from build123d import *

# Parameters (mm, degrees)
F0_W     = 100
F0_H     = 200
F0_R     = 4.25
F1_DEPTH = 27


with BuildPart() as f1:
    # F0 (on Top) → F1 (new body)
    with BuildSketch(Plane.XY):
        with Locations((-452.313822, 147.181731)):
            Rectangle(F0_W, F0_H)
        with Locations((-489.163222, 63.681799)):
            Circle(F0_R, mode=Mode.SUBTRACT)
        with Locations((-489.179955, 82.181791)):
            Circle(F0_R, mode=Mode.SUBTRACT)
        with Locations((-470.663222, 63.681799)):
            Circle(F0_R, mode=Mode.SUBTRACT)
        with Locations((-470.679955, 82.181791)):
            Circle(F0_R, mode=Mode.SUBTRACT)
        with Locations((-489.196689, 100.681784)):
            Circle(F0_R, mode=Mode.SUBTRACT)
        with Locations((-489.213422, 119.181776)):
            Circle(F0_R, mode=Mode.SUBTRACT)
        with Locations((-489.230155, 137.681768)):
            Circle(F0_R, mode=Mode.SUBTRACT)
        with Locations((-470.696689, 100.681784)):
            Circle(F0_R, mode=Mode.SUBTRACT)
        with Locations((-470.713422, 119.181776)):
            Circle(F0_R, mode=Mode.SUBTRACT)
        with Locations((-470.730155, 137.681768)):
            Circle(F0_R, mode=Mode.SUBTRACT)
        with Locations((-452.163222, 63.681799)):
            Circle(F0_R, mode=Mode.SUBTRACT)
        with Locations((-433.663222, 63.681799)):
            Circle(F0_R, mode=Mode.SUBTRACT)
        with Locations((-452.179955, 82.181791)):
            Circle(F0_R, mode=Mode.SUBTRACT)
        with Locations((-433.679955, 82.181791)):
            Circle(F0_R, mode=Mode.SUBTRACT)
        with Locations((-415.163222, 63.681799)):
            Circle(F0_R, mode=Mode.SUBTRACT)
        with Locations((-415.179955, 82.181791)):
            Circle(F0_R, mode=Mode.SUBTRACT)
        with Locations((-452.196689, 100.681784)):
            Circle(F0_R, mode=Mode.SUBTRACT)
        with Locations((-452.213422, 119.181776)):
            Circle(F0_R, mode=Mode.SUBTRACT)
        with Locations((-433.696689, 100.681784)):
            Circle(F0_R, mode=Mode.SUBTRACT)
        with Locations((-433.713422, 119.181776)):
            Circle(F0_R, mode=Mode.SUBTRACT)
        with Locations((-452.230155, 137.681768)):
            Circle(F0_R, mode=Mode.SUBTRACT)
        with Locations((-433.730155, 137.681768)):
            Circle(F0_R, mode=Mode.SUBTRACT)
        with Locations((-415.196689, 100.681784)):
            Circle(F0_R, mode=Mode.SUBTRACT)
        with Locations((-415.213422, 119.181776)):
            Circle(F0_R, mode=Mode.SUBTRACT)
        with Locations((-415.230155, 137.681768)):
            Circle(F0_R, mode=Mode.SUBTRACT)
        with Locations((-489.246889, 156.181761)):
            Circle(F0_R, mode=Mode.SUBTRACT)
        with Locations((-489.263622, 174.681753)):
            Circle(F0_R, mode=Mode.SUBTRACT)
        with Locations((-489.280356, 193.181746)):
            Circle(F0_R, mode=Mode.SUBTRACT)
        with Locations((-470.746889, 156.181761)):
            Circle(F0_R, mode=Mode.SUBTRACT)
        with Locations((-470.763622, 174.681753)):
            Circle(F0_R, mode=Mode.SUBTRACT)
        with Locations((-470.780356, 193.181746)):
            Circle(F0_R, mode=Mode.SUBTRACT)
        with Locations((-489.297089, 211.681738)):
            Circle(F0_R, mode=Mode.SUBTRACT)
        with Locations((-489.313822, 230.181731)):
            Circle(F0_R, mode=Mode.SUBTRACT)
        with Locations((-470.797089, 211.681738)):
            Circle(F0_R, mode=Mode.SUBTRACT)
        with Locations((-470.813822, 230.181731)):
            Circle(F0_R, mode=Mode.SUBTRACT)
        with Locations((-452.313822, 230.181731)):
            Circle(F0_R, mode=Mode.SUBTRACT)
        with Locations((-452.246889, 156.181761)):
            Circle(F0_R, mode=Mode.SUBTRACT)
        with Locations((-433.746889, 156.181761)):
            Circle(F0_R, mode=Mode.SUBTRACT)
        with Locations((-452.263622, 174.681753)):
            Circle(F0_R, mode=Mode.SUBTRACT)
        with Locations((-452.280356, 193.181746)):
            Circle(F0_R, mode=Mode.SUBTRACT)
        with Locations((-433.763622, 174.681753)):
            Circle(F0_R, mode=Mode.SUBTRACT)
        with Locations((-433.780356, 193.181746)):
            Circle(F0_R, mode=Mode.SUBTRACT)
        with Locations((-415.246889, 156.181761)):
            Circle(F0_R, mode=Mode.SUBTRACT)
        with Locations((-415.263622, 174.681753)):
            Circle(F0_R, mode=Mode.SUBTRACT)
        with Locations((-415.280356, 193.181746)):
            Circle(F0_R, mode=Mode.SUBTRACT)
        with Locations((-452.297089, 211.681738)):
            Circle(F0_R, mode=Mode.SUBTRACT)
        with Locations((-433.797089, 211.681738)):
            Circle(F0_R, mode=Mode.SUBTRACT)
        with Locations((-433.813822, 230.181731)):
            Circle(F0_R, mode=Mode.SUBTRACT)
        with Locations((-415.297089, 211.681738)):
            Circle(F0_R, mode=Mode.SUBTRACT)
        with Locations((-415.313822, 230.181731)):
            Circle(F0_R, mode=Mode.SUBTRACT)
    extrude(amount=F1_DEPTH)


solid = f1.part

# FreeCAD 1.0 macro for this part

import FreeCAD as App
import Part
import Sketcher


def add_polygon(sketch, points):
    """Adds a closed chain of lines whose ends are joined by coincident constraints."""
    first, n = sketch.GeometryCount, len(points)
    for a, b in zip(points, points[1:] + points[:1]):
        sketch.addGeometry(Part.LineSegment(App.Vector(*a, 0), App.Vector(*b, 0)), False)
    for i in range(n):
        sketch.addConstraint(Sketcher.Constraint("Coincident", first + i, 2, first + (i + 1) % n, 1))

doc = App.newDocument("Part")
body = doc.addObject("PartDesign::Body", "Body")

# Sketch on XY plane
sketch1 = doc.addObject("Sketcher::SketchObject", "Sketch")
body.addObject(sketch1)
sketch1.AttachmentSupport = (doc.XY_Plane, [""])
sketch1.MapMode = "FlatFace"
add_polygon(sketch1, [(-502.3, 247.2), (-502.3, 47.2), (-402.3, 47.2), (-402.3, 247.2)])  # lines 0-3
sketch1.addGeometry(Part.Circle(App.Vector(-489.2, 63.7, 0), App.Vector(0, 0, 1), 4.2), False)  # 4
sketch1.addGeometry(Part.Circle(App.Vector(-489.2, 82.2, 0), App.Vector(0, 0, 1), 4.2), False)  # 5
sketch1.addGeometry(Part.Circle(App.Vector(-489.2, 100.7, 0), App.Vector(0, 0, 1), 4.2), False)  # 6
sketch1.addGeometry(Part.Circle(App.Vector(-470.7, 63.7, 0), App.Vector(0, 0, 1), 4.2), False)  # 7
sketch1.addGeometry(Part.Circle(App.Vector(-470.7, 82.2, 0), App.Vector(0, 0, 1), 4.2), False)  # 8
sketch1.addGeometry(Part.Circle(App.Vector(-470.7, 100.7, 0), App.Vector(0, 0, 1), 4.2), False)  # 9
sketch1.addGeometry(Part.Circle(App.Vector(-489.2, 119.2, 0), App.Vector(0, 0, 1), 4.2), False)  # 10
sketch1.addGeometry(Part.Circle(App.Vector(-489.2, 137.7, 0), App.Vector(0, 0, 1), 4.2), False)  # 11
sketch1.addGeometry(Part.Circle(App.Vector(-470.7, 119.2, 0), App.Vector(0, 0, 1), 4.2), False)  # 12
sketch1.addGeometry(Part.Circle(App.Vector(-470.7, 137.7, 0), App.Vector(0, 0, 1), 4.2), False)  # 13
sketch1.addGeometry(Part.Circle(App.Vector(-452.2, 63.7, 0), App.Vector(0, 0, 1), 4.2), False)  # 14
sketch1.addGeometry(Part.Circle(App.Vector(-433.7, 63.7, 0), App.Vector(0, 0, 1), 4.2), False)  # 15
sketch1.addGeometry(Part.Circle(App.Vector(-452.2, 82.2, 0), App.Vector(0, 0, 1), 4.2), False)  # 16
sketch1.addGeometry(Part.Circle(App.Vector(-452.2, 100.7, 0), App.Vector(0, 0, 1), 4.2), False)  # 17
sketch1.addGeometry(Part.Circle(App.Vector(-433.7, 82.2, 0), App.Vector(0, 0, 1), 4.2), False)  # 18
sketch1.addGeometry(Part.Circle(App.Vector(-433.7, 100.7, 0), App.Vector(0, 0, 1), 4.2), False)  # 19
sketch1.addGeometry(Part.Circle(App.Vector(-415.2, 63.7, 0), App.Vector(0, 0, 1), 4.2), False)  # 20
sketch1.addGeometry(Part.Circle(App.Vector(-415.2, 82.2, 0), App.Vector(0, 0, 1), 4.2), False)  # 21
sketch1.addGeometry(Part.Circle(App.Vector(-415.2, 100.7, 0), App.Vector(0, 0, 1), 4.2), False)  # 22
sketch1.addGeometry(Part.Circle(App.Vector(-452.2, 119.2, 0), App.Vector(0, 0, 1), 4.2), False)  # 23
sketch1.addGeometry(Part.Circle(App.Vector(-433.7, 119.2, 0), App.Vector(0, 0, 1), 4.2), False)  # 24
sketch1.addGeometry(Part.Circle(App.Vector(-452.2, 137.7, 0), App.Vector(0, 0, 1), 4.2), False)  # 25
sketch1.addGeometry(Part.Circle(App.Vector(-433.7, 137.7, 0), App.Vector(0, 0, 1), 4.2), False)  # 26
sketch1.addGeometry(Part.Circle(App.Vector(-415.2, 119.2, 0), App.Vector(0, 0, 1), 4.2), False)  # 27
sketch1.addGeometry(Part.Circle(App.Vector(-415.2, 137.7, 0), App.Vector(0, 0, 1), 4.2), False)  # 28
sketch1.addGeometry(Part.Circle(App.Vector(-489.2, 156.2, 0), App.Vector(0, 0, 1), 4.2), False)  # 29
sketch1.addGeometry(Part.Circle(App.Vector(-489.3, 174.7, 0), App.Vector(0, 0, 1), 4.2), False)  # 30
sketch1.addGeometry(Part.Circle(App.Vector(-470.7, 156.2, 0), App.Vector(0, 0, 1), 4.2), False)  # 31
sketch1.addGeometry(Part.Circle(App.Vector(-452.2, 156.2, 0), App.Vector(0, 0, 1), 4.2), False)  # 32
sketch1.addGeometry(Part.Circle(App.Vector(-470.8, 174.7, 0), App.Vector(0, 0, 1), 4.2), False)  # 33
sketch1.addGeometry(Part.Circle(App.Vector(-452.3, 174.7, 0), App.Vector(0, 0, 1), 4.2), False)  # 34
sketch1.addGeometry(Part.Circle(App.Vector(-489.3, 193.2, 0), App.Vector(0, 0, 1), 4.2), False)  # 35
sketch1.addGeometry(Part.Circle(App.Vector(-489.3, 211.7, 0), App.Vector(0, 0, 1), 4.2), False)  # 36
sketch1.addGeometry(Part.Circle(App.Vector(-489.3, 230.2, 0), App.Vector(0, 0, 1), 4.2), False)  # 37
sketch1.addGeometry(Part.Circle(App.Vector(-470.8, 193.2, 0), App.Vector(0, 0, 1), 4.2), False)  # 38
sketch1.addGeometry(Part.Circle(App.Vector(-470.8, 211.7, 0), App.Vector(0, 0, 1), 4.2), False)  # 39
sketch1.addGeometry(Part.Circle(App.Vector(-452.3, 193.2, 0), App.Vector(0, 0, 1), 4.2), False)  # 40
sketch1.addGeometry(Part.Circle(App.Vector(-452.3, 211.7, 0), App.Vector(0, 0, 1), 4.2), False)  # 41
sketch1.addGeometry(Part.Circle(App.Vector(-470.8, 230.2, 0), App.Vector(0, 0, 1), 4.2), False)  # 42
sketch1.addGeometry(Part.Circle(App.Vector(-452.3, 230.2, 0), App.Vector(0, 0, 1), 4.2), False)  # 43
sketch1.addGeometry(Part.Circle(App.Vector(-433.7, 156.2, 0), App.Vector(0, 0, 1), 4.2), False)  # 44
sketch1.addGeometry(Part.Circle(App.Vector(-433.8, 174.7, 0), App.Vector(0, 0, 1), 4.2), False)  # 45
sketch1.addGeometry(Part.Circle(App.Vector(-415.2, 156.2, 0), App.Vector(0, 0, 1), 4.2), False)  # 46
sketch1.addGeometry(Part.Circle(App.Vector(-415.3, 174.7, 0), App.Vector(0, 0, 1), 4.2), False)  # 47
sketch1.addGeometry(Part.Circle(App.Vector(-433.8, 193.2, 0), App.Vector(0, 0, 1), 4.2), False)  # 48
sketch1.addGeometry(Part.Circle(App.Vector(-433.8, 211.7, 0), App.Vector(0, 0, 1), 4.2), False)  # 49
sketch1.addGeometry(Part.Circle(App.Vector(-433.8, 230.2, 0), App.Vector(0, 0, 1), 4.2), False)  # 50
sketch1.addGeometry(Part.Circle(App.Vector(-415.3, 193.2, 0), App.Vector(0, 0, 1), 4.2), False)  # 51
sketch1.addGeometry(Part.Circle(App.Vector(-415.3, 211.7, 0), App.Vector(0, 0, 1), 4.2), False)  # 52
sketch1.addGeometry(Part.Circle(App.Vector(-415.3, 230.2, 0), App.Vector(0, 0, 1), 4.2), False)  # 53
sketch1.addConstraint([
    Sketcher.Constraint("Vertical", 0),
    Sketcher.Constraint("Horizontal", 1),
    Sketcher.Constraint("Vertical", 2),
    Sketcher.Constraint("Horizontal", 3),
    Sketcher.Constraint("Equal", 4, 5),
    Sketcher.Constraint("Equal", 5, 6),
    Sketcher.Constraint("Equal", 6, 7),
    Sketcher.Constraint("Equal", 7, 8),
    Sketcher.Constraint("Equal", 8, 9),
    Sketcher.Constraint("Equal", 9, 10),
    Sketcher.Constraint("Equal", 10, 11),
    Sketcher.Constraint("Equal", 11, 12),
    Sketcher.Constraint("Equal", 12, 13),
    Sketcher.Constraint("Equal", 13, 14),
    Sketcher.Constraint("Equal", 14, 15),
    Sketcher.Constraint("Equal", 15, 16),
    Sketcher.Constraint("Equal", 16, 17),
    Sketcher.Constraint("Equal", 17, 18),
    Sketcher.Constraint("Equal", 18, 19),
    Sketcher.Constraint("Equal", 19, 20),
    Sketcher.Constraint("Equal", 20, 21),
    Sketcher.Constraint("Equal", 21, 22),
    Sketcher.Constraint("Equal", 22, 23),
    Sketcher.Constraint("Equal", 23, 24),
    Sketcher.Constraint("Equal", 24, 25),
    Sketcher.Constraint("Equal", 25, 26),
    Sketcher.Constraint("Equal", 26, 27),
    Sketcher.Constraint("Equal", 27, 28),
    Sketcher.Constraint("Equal", 28, 29),
    Sketcher.Constraint("Equal", 29, 30),
    Sketcher.Constraint("Equal", 30, 31),
    Sketcher.Constraint("Equal", 31, 32),
    Sketcher.Constraint("Equal", 32, 33),
    Sketcher.Constraint("Equal", 33, 34),
    Sketcher.Constraint("Equal", 34, 35),
    Sketcher.Constraint("Equal", 35, 36),
    Sketcher.Constraint("Equal", 36, 37),
    Sketcher.Constraint("Equal", 37, 38),
    Sketcher.Constraint("Equal", 38, 39),
    Sketcher.Constraint("Equal", 39, 40),
    Sketcher.Constraint("Equal", 40, 41),
    Sketcher.Constraint("Equal", 41, 42),
    Sketcher.Constraint("Equal", 42, 43),
    Sketcher.Constraint("Equal", 43, 44),
    Sketcher.Constraint("Equal", 44, 45),
    Sketcher.Constraint("Equal", 45, 46),
    Sketcher.Constraint("Equal", 46, 47),
    Sketcher.Constraint("Equal", 47, 48),
    Sketcher.Constraint("Equal", 48, 49),
    Sketcher.Constraint("Equal", 49, 50),
    Sketcher.Constraint("Equal", 50, 51),
    Sketcher.Constraint("Equal", 51, 52),
    Sketcher.Constraint("Equal", 52, 53),
    Sketcher.Constraint("Horizontal", 4, 3, 7, 3),
    Sketcher.Constraint("Horizontal", 5, 3, 8, 3),
    Sketcher.Constraint("Horizontal", 6, 3, 9, 3),
    Sketcher.Constraint("Horizontal", 10, 3, 12, 3),
    Sketcher.Constraint("Horizontal", 11, 3, 13, 3),
    Sketcher.Constraint("Horizontal", 7, 3, 14, 3),
    Sketcher.Constraint("Horizontal", 14, 3, 15, 3),
    Sketcher.Constraint("Horizontal", 8, 3, 16, 3),
    Sketcher.Constraint("Horizontal", 9, 3, 17, 3),
    Sketcher.Constraint("Horizontal", 16, 3, 18, 3),
    Sketcher.Constraint("Horizontal", 17, 3, 19, 3),
    Sketcher.Constraint("Horizontal", 15, 3, 20, 3),
    Sketcher.Constraint("Horizontal", 18, 3, 21, 3),
    Sketcher.Constraint("Horizontal", 19, 3, 22, 3),
    Sketcher.Constraint("Horizontal", 12, 3, 23, 3),
    Sketcher.Constraint("Horizontal", 23, 3, 24, 3),
    Sketcher.Constraint("Horizontal", 13, 3, 25, 3),
    Sketcher.Constraint("Horizontal", 25, 3, 26, 3),
    Sketcher.Constraint("Horizontal", 24, 3, 27, 3),
    Sketcher.Constraint("Horizontal", 26, 3, 28, 3),
    Sketcher.Constraint("Horizontal", 29, 3, 31, 3),
    Sketcher.Constraint("Horizontal", 31, 3, 32, 3),
    Sketcher.Constraint("Horizontal", 30, 3, 33, 3),
    Sketcher.Constraint("Horizontal", 33, 3, 34, 3),
    Sketcher.Constraint("Horizontal", 35, 3, 38, 3),
    Sketcher.Constraint("Horizontal", 36, 3, 39, 3),
    Sketcher.Constraint("Horizontal", 38, 3, 40, 3),
    Sketcher.Constraint("Horizontal", 39, 3, 41, 3),
    Sketcher.Constraint("Horizontal", 37, 3, 42, 3),
    Sketcher.Constraint("Horizontal", 42, 3, 43, 3),
    Sketcher.Constraint("Horizontal", 32, 3, 44, 3),
    Sketcher.Constraint("Horizontal", 34, 3, 45, 3),
    Sketcher.Constraint("Horizontal", 44, 3, 46, 3),
    Sketcher.Constraint("Horizontal", 45, 3, 47, 3),
    Sketcher.Constraint("Horizontal", 40, 3, 48, 3),
    Sketcher.Constraint("Horizontal", 41, 3, 49, 3),
    Sketcher.Constraint("Horizontal", 43, 3, 50, 3),
    Sketcher.Constraint("Horizontal", 48, 3, 51, 3),
    Sketcher.Constraint("Horizontal", 49, 3, 52, 3),
    Sketcher.Constraint("Horizontal", 50, 3, 53, 3),
    Sketcher.Constraint("Diameter", 4, 8.5),
    Sketcher.Constraint("DistanceX", 1, 1, 1, 2, 100.0),
    Sketcher.Constraint("DistanceY", 0, 2, 0, 1, 200.0),
    Sketcher.Constraint("DistanceX", 4, 3, 14, 3, 37.0),
    Sketcher.Constraint("DistanceX", 7, 3, 15, 3, 37.0),
    Sketcher.Constraint("DistanceX", 6, 3, 17, 3, 37.0),
    Sketcher.Constraint("DistanceX", 8, 3, 18, 3, 37.0),
    Sketcher.Constraint("DistanceX", 9, 3, 19, 3, 37.0),
    Sketcher.Constraint("DistanceX", 14, 3, 20, 3, 37.0),
    Sketcher.Constraint("DistanceX", 16, 3, 21, 3, 37.0),
    Sketcher.Constraint("DistanceX", 17, 3, 22, 3, 37.0),
    Sketcher.Constraint("DistanceX", 12, 3, 24, 3, 37.0),
    Sketcher.Constraint("DistanceX", 13, 3, 26, 3, 37.0),
    Sketcher.Constraint("DistanceX", 23, 3, 27, 3, 37.0),
    Sketcher.Constraint("DistanceX", 25, 3, 28, 3, 37.0),
    Sketcher.Constraint("DistanceX", 29, 3, 32, 3, 37.0),
    Sketcher.Constraint("DistanceX", 30, 3, 34, 3, 37.0),
    Sketcher.Constraint("DistanceX", 35, 3, 40, 3, 37.0),
    Sketcher.Constraint("DistanceX", 36, 3, 41, 3, 37.0),
    Sketcher.Constraint("DistanceX", 37, 3, 43, 3, 37.0),
    Sketcher.Constraint("DistanceX", 33, 3, 45, 3, 37.0),
    Sketcher.Constraint("DistanceX", 32, 3, 46, 3, 37.0),
    Sketcher.Constraint("DistanceX", 34, 3, 47, 3, 37.0),
    Sketcher.Constraint("DistanceX", 39, 3, 49, 3, 37.0),
    Sketcher.Constraint("DistanceX", 42, 3, 50, 3, 37.0),
    Sketcher.Constraint("DistanceX", 40, 3, 51, 3, 37.0),
    Sketcher.Constraint("DistanceX", 41, 3, 52, 3, 37.0),
    Sketcher.Constraint("DistanceX", 43, 3, 53, 3, 37.0),
    Sketcher.Constraint("DistanceX", 53, 3, 2, 2, 13.0),
    Sketcher.Constraint("DistanceY", 53, 3, 2, 2, 17.0),
    Sketcher.Constraint("DistanceX", 4, 3, 7, 3, 18.5),
    Sketcher.Constraint("DistanceX", 5, 3, 8, 3, 18.5),
    Sketcher.Constraint("DistanceX", 6, 3, 9, 3, 18.5),
    Sketcher.Constraint("DistanceX", 10, 3, 12, 3, 18.5),
    Sketcher.Constraint("DistanceX", 11, 3, 13, 3, 18.5),
    Sketcher.Constraint("DistanceX", 8, 3, 16, 3, 18.5),
    Sketcher.Constraint("DistanceX", 12, 3, 23, 3, 18.5),
    Sketcher.Constraint("DistanceX", 13, 3, 25, 3, 18.5),
    Sketcher.Constraint("DistanceX", 29, 3, 31, 3, 18.5),
    Sketcher.Constraint("DistanceX", 30, 3, 33, 3, 18.5),
    Sketcher.Constraint("DistanceX", 35, 3, 38, 3, 18.5),
    Sketcher.Constraint("DistanceX", 36, 3, 39, 3, 18.5),
    Sketcher.Constraint("DistanceX", 37, 3, 42, 3, 18.5),
    Sketcher.Constraint("DistanceX", 32, 3, 44, 3, 18.5),
    Sketcher.Constraint("DistanceX", 40, 3, 48, 3, 18.5),
    Sketcher.Constraint("DistanceY", -1, 1, 4, 3, 63.681799),
    Sketcher.Constraint("DistanceX", 10, 3, 4, 3, 0.0502),
    Sketcher.Constraint("DistanceX", 11, 3, 5, 3, 0.0502),
    Sketcher.Constraint("DistanceX", 30, 3, 10, 3, 0.0502),
    Sketcher.Constraint("DistanceX", 36, 3, 29, 3, 0.0502),
    Sketcher.Constraint("DistanceX", 37, 3, 30, 3, 0.0502),
    Sketcher.Constraint("DistanceX", 4, 3, -1, 1, 489.163222),
    Sketcher.Constraint("DistanceY", -1, 1, 5, 3, 82.181791),
    Sketcher.Constraint("DistanceX", 6, 3, -1, 1, 489.196689),
    Sketcher.Constraint("DistanceY", -1, 1, 11, 3, 137.681768),
    Sketcher.Constraint("DistanceX", 29, 3, -1, 1, 489.246889),
    Sketcher.Constraint("DistanceY", -1, 1, 29, 3, 156.181761),
    Sketcher.Constraint("DistanceY", -1, 1, 36, 3, 211.681738),
    Sketcher.Constraint("DistanceY", -1, 1, 37, 3, 230.181731),
    Sketcher.Constraint("DistanceY", 29, 3, 30, 3, 18.499992),
    Sketcher.Constraint("DistanceY", 35, 3, 36, 3, 18.499992),
    Sketcher.Constraint("DistanceX", 5, 3, -1, 1, 489.179955),
    Sketcher.Constraint("DistanceY", -1, 1, 6, 3, 100.681784),
    Sketcher.Constraint("DistanceY", -1, 1, 10, 3, 119.181776),
    Sketcher.Constraint("DistanceX", 35, 3, -1, 1, 489.280356),
])
pad1 = doc.addObject("PartDesign::Pad", "Pad")
body.addObject(pad1)
pad1.Profile = sketch1
pad1.Length = 27

doc.recompute()
